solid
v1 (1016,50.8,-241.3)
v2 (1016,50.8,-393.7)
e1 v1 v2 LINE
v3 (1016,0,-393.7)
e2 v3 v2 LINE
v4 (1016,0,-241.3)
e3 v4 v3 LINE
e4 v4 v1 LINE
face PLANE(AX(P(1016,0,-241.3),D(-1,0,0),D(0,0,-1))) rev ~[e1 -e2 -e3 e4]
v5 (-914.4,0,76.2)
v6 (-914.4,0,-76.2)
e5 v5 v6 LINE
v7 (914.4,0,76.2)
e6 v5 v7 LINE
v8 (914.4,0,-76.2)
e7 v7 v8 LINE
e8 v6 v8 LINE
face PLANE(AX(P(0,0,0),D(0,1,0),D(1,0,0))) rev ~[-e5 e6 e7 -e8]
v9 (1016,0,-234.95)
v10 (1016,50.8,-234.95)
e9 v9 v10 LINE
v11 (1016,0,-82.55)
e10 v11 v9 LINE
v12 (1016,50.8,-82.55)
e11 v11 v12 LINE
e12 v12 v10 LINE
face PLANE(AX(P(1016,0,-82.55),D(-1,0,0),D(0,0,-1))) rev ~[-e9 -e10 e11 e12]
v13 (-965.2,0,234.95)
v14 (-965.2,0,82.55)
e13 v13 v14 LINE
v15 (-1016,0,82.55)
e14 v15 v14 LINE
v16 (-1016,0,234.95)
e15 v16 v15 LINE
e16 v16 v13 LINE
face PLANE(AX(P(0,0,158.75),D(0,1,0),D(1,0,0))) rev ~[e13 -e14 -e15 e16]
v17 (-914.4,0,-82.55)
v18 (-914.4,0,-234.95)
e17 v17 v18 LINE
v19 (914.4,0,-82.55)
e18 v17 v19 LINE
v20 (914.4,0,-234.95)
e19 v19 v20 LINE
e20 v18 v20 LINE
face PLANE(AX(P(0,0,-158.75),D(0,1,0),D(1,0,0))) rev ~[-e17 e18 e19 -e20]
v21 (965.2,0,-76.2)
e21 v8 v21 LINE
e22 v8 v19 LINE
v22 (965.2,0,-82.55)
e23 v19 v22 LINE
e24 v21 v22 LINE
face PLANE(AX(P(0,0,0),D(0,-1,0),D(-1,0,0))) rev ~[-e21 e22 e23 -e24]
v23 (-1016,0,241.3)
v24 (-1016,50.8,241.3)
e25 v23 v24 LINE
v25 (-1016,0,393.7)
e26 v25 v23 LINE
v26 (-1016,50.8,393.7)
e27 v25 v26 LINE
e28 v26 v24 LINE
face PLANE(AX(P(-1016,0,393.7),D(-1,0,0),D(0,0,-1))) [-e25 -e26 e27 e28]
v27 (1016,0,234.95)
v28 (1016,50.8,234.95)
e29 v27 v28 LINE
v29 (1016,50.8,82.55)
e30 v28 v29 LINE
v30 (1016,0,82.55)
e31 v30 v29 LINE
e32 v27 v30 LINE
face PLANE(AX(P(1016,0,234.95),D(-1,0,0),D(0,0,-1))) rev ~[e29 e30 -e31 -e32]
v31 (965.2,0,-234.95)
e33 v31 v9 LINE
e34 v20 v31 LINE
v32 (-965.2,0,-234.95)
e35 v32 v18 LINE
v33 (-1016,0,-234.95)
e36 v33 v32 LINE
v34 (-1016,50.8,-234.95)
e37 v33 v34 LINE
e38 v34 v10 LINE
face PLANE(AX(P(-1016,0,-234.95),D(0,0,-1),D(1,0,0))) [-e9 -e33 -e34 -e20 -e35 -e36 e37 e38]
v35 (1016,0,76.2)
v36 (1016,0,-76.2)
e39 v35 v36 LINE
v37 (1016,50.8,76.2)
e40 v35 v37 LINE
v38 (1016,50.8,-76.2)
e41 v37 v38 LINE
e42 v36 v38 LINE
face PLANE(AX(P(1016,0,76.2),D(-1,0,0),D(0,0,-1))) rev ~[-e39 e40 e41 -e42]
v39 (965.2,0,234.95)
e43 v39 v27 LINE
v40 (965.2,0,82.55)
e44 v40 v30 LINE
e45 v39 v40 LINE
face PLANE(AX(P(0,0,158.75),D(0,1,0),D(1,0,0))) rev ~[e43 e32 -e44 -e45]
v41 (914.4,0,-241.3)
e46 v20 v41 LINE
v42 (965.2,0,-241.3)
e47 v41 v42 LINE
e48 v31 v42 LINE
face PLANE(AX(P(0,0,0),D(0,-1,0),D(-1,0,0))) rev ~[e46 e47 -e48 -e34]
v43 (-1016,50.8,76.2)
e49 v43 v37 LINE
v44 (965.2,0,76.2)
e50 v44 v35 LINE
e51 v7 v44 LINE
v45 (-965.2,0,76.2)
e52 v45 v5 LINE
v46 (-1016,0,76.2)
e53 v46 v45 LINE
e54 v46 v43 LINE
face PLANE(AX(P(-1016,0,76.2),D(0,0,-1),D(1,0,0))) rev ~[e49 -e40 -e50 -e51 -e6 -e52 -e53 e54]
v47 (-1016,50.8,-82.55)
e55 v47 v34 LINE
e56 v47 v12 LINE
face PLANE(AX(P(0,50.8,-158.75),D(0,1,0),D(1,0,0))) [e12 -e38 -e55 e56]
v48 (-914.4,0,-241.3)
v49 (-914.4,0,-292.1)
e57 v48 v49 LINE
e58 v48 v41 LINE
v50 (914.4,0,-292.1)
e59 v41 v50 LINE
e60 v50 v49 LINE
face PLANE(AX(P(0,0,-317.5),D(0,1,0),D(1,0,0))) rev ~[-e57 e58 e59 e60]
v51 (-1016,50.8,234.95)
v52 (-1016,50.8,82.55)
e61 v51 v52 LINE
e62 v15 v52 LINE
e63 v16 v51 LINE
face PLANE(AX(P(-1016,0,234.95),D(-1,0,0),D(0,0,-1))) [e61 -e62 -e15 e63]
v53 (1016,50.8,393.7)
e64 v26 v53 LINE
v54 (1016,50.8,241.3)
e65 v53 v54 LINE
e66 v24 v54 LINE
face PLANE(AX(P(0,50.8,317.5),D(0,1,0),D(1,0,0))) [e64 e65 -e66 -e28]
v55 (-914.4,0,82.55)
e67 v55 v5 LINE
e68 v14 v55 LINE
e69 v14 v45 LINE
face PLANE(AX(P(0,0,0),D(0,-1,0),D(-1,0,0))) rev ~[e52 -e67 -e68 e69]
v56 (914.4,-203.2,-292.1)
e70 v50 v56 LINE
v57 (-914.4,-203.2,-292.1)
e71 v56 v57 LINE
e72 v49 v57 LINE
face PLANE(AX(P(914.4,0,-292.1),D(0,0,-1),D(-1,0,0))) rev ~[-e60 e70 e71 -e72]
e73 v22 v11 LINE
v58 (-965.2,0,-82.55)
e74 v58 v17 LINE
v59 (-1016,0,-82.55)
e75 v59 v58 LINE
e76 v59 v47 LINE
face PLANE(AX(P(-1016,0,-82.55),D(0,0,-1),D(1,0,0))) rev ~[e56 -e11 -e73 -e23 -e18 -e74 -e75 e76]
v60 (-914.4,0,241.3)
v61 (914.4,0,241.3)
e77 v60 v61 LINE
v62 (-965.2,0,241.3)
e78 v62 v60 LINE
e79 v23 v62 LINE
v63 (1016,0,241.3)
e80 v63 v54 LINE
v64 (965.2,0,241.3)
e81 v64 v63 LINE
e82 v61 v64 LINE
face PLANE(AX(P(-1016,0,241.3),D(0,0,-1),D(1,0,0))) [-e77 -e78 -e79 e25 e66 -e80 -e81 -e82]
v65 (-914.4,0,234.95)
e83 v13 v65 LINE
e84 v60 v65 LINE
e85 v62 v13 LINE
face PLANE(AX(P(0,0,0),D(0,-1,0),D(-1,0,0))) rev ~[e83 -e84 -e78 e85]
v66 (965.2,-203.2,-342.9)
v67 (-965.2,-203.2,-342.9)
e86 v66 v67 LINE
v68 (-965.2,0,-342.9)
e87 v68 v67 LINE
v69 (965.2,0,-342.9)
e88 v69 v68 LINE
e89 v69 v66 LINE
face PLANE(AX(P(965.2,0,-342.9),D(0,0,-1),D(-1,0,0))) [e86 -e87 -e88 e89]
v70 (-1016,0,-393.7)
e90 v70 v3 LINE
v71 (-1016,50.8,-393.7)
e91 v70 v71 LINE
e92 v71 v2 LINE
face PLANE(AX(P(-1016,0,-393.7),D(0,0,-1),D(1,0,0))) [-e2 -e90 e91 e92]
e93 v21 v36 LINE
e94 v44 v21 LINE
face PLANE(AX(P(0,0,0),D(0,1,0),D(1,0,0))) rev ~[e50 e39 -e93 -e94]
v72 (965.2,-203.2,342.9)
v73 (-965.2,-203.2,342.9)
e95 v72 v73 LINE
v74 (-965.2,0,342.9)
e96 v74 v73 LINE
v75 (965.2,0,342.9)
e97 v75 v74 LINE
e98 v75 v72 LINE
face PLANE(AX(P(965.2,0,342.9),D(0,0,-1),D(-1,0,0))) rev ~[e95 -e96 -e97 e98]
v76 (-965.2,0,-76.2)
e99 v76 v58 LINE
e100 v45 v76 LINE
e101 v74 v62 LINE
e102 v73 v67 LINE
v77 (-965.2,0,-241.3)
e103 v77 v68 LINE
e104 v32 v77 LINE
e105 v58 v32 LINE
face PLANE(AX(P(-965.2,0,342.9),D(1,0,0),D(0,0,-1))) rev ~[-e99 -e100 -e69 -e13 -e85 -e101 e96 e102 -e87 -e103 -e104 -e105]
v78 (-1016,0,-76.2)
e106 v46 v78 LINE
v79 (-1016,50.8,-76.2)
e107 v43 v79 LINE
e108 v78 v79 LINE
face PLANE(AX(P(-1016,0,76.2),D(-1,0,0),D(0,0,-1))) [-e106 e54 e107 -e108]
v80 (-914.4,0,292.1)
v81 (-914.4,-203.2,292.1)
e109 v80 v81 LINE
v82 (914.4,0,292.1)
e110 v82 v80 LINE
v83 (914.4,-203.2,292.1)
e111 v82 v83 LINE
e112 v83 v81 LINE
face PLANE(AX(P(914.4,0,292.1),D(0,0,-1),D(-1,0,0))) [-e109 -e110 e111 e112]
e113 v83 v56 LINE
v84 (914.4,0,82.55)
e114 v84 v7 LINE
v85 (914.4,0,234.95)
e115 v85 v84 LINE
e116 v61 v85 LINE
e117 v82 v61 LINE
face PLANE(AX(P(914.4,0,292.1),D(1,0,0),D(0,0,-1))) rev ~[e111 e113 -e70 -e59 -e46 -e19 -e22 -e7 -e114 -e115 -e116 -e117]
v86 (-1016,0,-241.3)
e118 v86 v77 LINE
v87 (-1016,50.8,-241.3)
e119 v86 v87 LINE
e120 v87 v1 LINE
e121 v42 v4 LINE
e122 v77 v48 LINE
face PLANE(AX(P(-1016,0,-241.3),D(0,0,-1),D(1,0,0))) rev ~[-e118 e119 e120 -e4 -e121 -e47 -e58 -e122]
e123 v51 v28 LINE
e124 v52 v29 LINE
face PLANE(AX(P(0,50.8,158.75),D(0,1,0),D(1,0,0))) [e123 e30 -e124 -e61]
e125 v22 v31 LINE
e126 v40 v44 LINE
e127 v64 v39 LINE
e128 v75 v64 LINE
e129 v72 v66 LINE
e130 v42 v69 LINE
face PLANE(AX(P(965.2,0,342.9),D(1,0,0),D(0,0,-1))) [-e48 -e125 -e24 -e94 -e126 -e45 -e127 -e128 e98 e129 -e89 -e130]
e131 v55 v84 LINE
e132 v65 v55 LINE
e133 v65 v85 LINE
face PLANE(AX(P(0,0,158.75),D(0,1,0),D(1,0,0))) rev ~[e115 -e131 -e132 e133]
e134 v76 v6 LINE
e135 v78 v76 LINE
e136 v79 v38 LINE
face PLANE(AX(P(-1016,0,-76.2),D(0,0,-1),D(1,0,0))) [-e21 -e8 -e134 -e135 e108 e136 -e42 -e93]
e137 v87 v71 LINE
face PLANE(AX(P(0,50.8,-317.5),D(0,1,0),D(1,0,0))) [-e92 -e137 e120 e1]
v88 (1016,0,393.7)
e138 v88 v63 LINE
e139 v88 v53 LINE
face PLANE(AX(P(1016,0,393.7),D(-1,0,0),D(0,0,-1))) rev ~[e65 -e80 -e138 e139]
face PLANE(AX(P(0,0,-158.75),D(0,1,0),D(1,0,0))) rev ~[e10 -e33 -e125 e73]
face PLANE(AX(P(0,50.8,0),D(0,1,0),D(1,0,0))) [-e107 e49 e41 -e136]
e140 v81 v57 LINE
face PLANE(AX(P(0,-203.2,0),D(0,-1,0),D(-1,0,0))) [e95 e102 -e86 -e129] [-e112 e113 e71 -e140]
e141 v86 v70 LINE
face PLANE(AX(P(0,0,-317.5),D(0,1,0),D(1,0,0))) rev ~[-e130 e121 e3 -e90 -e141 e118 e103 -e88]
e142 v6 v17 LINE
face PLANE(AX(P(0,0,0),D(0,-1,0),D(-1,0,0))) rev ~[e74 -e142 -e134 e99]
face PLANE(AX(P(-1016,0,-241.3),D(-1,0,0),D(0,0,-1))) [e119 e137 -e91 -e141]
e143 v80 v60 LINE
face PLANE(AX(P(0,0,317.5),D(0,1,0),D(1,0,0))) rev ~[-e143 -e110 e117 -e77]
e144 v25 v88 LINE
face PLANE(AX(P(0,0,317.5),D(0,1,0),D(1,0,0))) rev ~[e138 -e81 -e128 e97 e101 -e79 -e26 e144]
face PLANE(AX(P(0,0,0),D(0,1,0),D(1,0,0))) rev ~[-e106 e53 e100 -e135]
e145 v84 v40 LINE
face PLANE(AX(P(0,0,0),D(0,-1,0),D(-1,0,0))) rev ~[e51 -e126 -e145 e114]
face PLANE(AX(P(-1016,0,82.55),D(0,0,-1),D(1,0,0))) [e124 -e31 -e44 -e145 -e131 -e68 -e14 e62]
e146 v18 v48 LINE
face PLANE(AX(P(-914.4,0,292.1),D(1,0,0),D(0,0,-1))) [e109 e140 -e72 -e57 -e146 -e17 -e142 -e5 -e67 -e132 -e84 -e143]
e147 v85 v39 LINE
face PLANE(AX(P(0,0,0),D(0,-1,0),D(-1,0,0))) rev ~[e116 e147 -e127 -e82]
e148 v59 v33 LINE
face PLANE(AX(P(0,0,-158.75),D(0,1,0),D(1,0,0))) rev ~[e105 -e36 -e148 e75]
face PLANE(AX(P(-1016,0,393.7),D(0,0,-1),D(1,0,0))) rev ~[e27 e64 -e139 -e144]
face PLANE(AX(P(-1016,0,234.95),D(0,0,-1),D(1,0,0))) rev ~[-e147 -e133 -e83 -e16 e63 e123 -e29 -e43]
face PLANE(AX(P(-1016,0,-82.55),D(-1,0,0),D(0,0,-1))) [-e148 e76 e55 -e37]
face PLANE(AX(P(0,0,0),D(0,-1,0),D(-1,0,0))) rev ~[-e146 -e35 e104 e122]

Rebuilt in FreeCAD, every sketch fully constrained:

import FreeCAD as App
import Part
import Sketcher
Q = App.Units.Quantity


def add_polygon(sketch, points):
    """Adds a closed chain of lines whose ends are joined by coincident constraints."""
    first, n = sketch.GeometryCount, len(points)
    for a, b in zip(points, points[1:] + points[:1]):
        sketch.addGeometry(Part.LineSegment(App.Vector(*a, 0), App.Vector(*b, 0)), False)
    for i in range(n):
        sketch.addConstraint(Sketcher.Constraint("Coincident", first + i, 2, first + (i + 1) % n, 1))

doc = App.newDocument("Part")
body = doc.addObject("PartDesign::Body", "Body")

sketch1 = body.newObject("Sketcher::SketchObject", "Sketch")
sketch1.AttachmentSupport = (doc.getObject("XZ_Plane"), [""])
sketch1.MapMode = "FlatFace"
add_polygon(sketch1, [(-1016, -76), (-1016, 76), (1016, 76), (1016, -76)])
sketch1.addConstraint(Sketcher.Constraint("Vertical", 0))
sketch1.addConstraint(Sketcher.Constraint("Horizontal", 1))
sketch1.addConstraint(Sketcher.Constraint("Vertical", 2))
sketch1.addConstraint(Sketcher.Constraint("Horizontal", 3))
sketch1.addConstraint(Sketcher.Constraint("Symmetric", 0, 2, 2, 2, -1, 1))
sketch1.addConstraint(Sketcher.Constraint("DistanceX", 1, 1, 1, 2, Q("80 in")))
sketch1.addConstraint(Sketcher.Constraint("DistanceY", 0, 1, 0, 2, Q("6 in")))
pad1 = body.newObject("PartDesign::Pad", "Pad")
pad1.Profile = sketch1
pad1.Length = Q("2 in")
pad1.Reversed = True
body2 = doc.addObject("PartDesign::Body", "Body001")

sketch2 = body2.newObject("Sketcher::SketchObject", "Sketch001")
sketch2.AttachmentSupport = (doc.getObject("XZ_Plane001"), [""])
sketch2.MapMode = "FlatFace"
add_polygon(sketch2, [(-1016, -235), (-1016, -83), (1016, -83), (1016, -235)])
sketch2.addConstraint(Sketcher.Constraint("Vertical", 0))
sketch2.addConstraint(Sketcher.Constraint("Horizontal", 1))
sketch2.addConstraint(Sketcher.Constraint("Vertical", 2))
sketch2.addConstraint(Sketcher.Constraint("Horizontal", 3))
sketch2.addConstraint(Sketcher.Constraint("DistanceX", 1, 1, 1, 2, Q("80 in")))
sketch2.addConstraint(Sketcher.Constraint("DistanceY", 0, 1, 0, 2, Q("6 in")))
sketch2.addConstraint(Sketcher.Constraint("DistanceX", 0, 2, -1, 1, Q("40 in")))
sketch2.addConstraint(Sketcher.Constraint("DistanceY", 0, 2, -1, 1, Q("3.25 in")))
pad2 = body2.newObject("PartDesign::Pad", "Pad001")
pad2.Profile = sketch2
pad2.Length = Q("2 in")
pad2.Reversed = True
body3 = doc.addObject("PartDesign::Body", "Body002")

sketch3 = body3.newObject("Sketcher::SketchObject", "Sketch002")
sketch3.AttachmentSupport = (doc.getObject("XZ_Plane002"), [""])
sketch3.MapMode = "FlatFace"
add_polygon(sketch3, [(-1016, -394), (-1016, -241), (1016, -241), (1016, -394)])
sketch3.addConstraint(Sketcher.Constraint("Vertical", 0))
sketch3.addConstraint(Sketcher.Constraint("Horizontal", 1))
sketch3.addConstraint(Sketcher.Constraint("Vertical", 2))
sketch3.addConstraint(Sketcher.Constraint("Horizontal", 3))
sketch3.addConstraint(Sketcher.Constraint("DistanceX", 1, 1, 1, 2, Q("80 in")))
sketch3.addConstraint(Sketcher.Constraint("DistanceY", 0, 1, 0, 2, Q("6 in")))
sketch3.addConstraint(Sketcher.Constraint("DistanceX", 0, 2, -1, 1, Q("40 in")))
sketch3.addConstraint(Sketcher.Constraint("DistanceY", 0, 2, -1, 1, Q("9.5 in")))
pad3 = body3.newObject("PartDesign::Pad", "Pad002")
pad3.Profile = sketch3
pad3.Length = Q("2 in")
pad3.Reversed = True
body4 = doc.addObject("PartDesign::Body", "Body003")

sketch4 = body4.newObject("Sketcher::SketchObject", "Sketch003")
sketch4.AttachmentSupport = (doc.getObject("XZ_Plane003"), [""])
sketch4.MapMode = "FlatFace"
add_polygon(sketch4, [(-1016, 83), (-1016, 235), (1016, 235), (1016, 83)])
sketch4.addConstraint(Sketcher.Constraint("Vertical", 0))
sketch4.addConstraint(Sketcher.Constraint("Horizontal", 1))
sketch4.addConstraint(Sketcher.Constraint("Vertical", 2))
sketch4.addConstraint(Sketcher.Constraint("Horizontal", 3))
sketch4.addConstraint(Sketcher.Constraint("DistanceX", 1, 1, 1, 2, Q("80 in")))
sketch4.addConstraint(Sketcher.Constraint("DistanceY", 0, 1, 0, 2, Q("6 in")))
sketch4.addConstraint(Sketcher.Constraint("DistanceX", 0, 2, -1, 1, Q("40 in")))
sketch4.addConstraint(Sketcher.Constraint("DistanceY", -1, 1, 0, 2, Q("9.25 in")))
pad4 = body4.newObject("PartDesign::Pad", "Pad003")
pad4.Profile = sketch4
pad4.Length = Q("2 in")
pad4.Reversed = True
body5 = doc.addObject("PartDesign::Body", "Body004")

sketch5 = body5.newObject("Sketcher::SketchObject", "Sketch004")
sketch5.AttachmentSupport = (doc.getObject("XZ_Plane004"), [""])
sketch5.MapMode = "FlatFace"
add_polygon(sketch5, [(-1016, 241), (-1016, 394), (1016, 394), (1016, 241)])
sketch5.addConstraint(Sketcher.Constraint("Vertical", 0))
sketch5.addConstraint(Sketcher.Constraint("Horizontal", 1))
sketch5.addConstraint(Sketcher.Constraint("Vertical", 2))
sketch5.addConstraint(Sketcher.Constraint("Horizontal", 3))
sketch5.addConstraint(Sketcher.Constraint("DistanceX", 1, 1, 1, 2, Q("80 in")))
sketch5.addConstraint(Sketcher.Constraint("DistanceY", 0, 1, 0, 2, Q("6 in")))
sketch5.addConstraint(Sketcher.Constraint("DistanceX", 0, 2, -1, 1, Q("40 in")))
sketch5.addConstraint(Sketcher.Constraint("DistanceY", -1, 1, 0, 2, Q("15.5 in")))
pad5 = body5.newObject("PartDesign::Pad", "Pad004")
pad5.Profile = sketch5
pad5.Length = Q("2 in")
pad5.Reversed = True
body.AllowCompound = True
doc.recompute()

boolean = body.newObject("PartDesign::Boolean", "Boolean")
boolean.Type = "Fuse"
boolean.addObjects([body2])
doc.recompute()

boolean2 = body.newObject("PartDesign::Boolean", "Boolean001")
boolean2.Type = "Fuse"
boolean2.addObjects([body3])
doc.recompute()

boolean3 = body.newObject("PartDesign::Boolean", "Boolean002")
boolean3.Type = "Fuse"
boolean3.addObjects([body4])
doc.recompute()

boolean4 = body.newObject("PartDesign::Boolean", "Boolean003")
boolean4.Type = "Fuse"
boolean4.addObjects([body5])

sketch6 = body.newObject("Sketcher::SketchObject", "Sketch005")
sketch6.AttachmentSupport = (doc.getObject("XZ_Plane"), [""])
sketch6.MapMode = "FlatFace"
add_polygon(sketch6, [(965, -343), (965, 343), (-965, 343), (-965, -343)])
add_polygon(sketch6, [(-914, 292), (914, 292), (914, -292), (-914, -292)])
sketch6.addConstraint(Sketcher.Constraint("Vertical", 0))
sketch6.addConstraint(Sketcher.Constraint("Horizontal", 1))
sketch6.addConstraint(Sketcher.Constraint("Vertical", 2))
sketch6.addConstraint(Sketcher.Constraint("Horizontal", 3))
sketch6.addConstraint(Sketcher.Constraint("Horizontal", 4))
sketch6.addConstraint(Sketcher.Constraint("Vertical", 5))
sketch6.addConstraint(Sketcher.Constraint("Horizontal", 6))
sketch6.addConstraint(Sketcher.Constraint("Vertical", 7))
sketch6.addConstraint(Sketcher.Constraint("Symmetric", 0, 2, 2, 2, -1, 1))
sketch6.addConstraint(Sketcher.Constraint("Symmetric", 4, 2, 6, 2, -1, 1))
sketch6.addConstraint(Sketcher.Constraint("DistanceX", 1, 2, 1, 1, Q("76 in")))
sketch6.addConstraint(Sketcher.Constraint("DistanceX", 4, 1, 4, 2, Q("72 in")))
sketch6.addConstraint(Sketcher.Constraint("DistanceY", 0, 1, 0, 2, Q("27 in")))
sketch6.addConstraint(Sketcher.Constraint("DistanceY", 5, 2, 5, 1, Q("23 in")))
pad6 = body.newObject("PartDesign::Pad", "Pad005")
pad6.Profile = sketch6
pad6.Length = Q("8 in")

doc.recompute()
